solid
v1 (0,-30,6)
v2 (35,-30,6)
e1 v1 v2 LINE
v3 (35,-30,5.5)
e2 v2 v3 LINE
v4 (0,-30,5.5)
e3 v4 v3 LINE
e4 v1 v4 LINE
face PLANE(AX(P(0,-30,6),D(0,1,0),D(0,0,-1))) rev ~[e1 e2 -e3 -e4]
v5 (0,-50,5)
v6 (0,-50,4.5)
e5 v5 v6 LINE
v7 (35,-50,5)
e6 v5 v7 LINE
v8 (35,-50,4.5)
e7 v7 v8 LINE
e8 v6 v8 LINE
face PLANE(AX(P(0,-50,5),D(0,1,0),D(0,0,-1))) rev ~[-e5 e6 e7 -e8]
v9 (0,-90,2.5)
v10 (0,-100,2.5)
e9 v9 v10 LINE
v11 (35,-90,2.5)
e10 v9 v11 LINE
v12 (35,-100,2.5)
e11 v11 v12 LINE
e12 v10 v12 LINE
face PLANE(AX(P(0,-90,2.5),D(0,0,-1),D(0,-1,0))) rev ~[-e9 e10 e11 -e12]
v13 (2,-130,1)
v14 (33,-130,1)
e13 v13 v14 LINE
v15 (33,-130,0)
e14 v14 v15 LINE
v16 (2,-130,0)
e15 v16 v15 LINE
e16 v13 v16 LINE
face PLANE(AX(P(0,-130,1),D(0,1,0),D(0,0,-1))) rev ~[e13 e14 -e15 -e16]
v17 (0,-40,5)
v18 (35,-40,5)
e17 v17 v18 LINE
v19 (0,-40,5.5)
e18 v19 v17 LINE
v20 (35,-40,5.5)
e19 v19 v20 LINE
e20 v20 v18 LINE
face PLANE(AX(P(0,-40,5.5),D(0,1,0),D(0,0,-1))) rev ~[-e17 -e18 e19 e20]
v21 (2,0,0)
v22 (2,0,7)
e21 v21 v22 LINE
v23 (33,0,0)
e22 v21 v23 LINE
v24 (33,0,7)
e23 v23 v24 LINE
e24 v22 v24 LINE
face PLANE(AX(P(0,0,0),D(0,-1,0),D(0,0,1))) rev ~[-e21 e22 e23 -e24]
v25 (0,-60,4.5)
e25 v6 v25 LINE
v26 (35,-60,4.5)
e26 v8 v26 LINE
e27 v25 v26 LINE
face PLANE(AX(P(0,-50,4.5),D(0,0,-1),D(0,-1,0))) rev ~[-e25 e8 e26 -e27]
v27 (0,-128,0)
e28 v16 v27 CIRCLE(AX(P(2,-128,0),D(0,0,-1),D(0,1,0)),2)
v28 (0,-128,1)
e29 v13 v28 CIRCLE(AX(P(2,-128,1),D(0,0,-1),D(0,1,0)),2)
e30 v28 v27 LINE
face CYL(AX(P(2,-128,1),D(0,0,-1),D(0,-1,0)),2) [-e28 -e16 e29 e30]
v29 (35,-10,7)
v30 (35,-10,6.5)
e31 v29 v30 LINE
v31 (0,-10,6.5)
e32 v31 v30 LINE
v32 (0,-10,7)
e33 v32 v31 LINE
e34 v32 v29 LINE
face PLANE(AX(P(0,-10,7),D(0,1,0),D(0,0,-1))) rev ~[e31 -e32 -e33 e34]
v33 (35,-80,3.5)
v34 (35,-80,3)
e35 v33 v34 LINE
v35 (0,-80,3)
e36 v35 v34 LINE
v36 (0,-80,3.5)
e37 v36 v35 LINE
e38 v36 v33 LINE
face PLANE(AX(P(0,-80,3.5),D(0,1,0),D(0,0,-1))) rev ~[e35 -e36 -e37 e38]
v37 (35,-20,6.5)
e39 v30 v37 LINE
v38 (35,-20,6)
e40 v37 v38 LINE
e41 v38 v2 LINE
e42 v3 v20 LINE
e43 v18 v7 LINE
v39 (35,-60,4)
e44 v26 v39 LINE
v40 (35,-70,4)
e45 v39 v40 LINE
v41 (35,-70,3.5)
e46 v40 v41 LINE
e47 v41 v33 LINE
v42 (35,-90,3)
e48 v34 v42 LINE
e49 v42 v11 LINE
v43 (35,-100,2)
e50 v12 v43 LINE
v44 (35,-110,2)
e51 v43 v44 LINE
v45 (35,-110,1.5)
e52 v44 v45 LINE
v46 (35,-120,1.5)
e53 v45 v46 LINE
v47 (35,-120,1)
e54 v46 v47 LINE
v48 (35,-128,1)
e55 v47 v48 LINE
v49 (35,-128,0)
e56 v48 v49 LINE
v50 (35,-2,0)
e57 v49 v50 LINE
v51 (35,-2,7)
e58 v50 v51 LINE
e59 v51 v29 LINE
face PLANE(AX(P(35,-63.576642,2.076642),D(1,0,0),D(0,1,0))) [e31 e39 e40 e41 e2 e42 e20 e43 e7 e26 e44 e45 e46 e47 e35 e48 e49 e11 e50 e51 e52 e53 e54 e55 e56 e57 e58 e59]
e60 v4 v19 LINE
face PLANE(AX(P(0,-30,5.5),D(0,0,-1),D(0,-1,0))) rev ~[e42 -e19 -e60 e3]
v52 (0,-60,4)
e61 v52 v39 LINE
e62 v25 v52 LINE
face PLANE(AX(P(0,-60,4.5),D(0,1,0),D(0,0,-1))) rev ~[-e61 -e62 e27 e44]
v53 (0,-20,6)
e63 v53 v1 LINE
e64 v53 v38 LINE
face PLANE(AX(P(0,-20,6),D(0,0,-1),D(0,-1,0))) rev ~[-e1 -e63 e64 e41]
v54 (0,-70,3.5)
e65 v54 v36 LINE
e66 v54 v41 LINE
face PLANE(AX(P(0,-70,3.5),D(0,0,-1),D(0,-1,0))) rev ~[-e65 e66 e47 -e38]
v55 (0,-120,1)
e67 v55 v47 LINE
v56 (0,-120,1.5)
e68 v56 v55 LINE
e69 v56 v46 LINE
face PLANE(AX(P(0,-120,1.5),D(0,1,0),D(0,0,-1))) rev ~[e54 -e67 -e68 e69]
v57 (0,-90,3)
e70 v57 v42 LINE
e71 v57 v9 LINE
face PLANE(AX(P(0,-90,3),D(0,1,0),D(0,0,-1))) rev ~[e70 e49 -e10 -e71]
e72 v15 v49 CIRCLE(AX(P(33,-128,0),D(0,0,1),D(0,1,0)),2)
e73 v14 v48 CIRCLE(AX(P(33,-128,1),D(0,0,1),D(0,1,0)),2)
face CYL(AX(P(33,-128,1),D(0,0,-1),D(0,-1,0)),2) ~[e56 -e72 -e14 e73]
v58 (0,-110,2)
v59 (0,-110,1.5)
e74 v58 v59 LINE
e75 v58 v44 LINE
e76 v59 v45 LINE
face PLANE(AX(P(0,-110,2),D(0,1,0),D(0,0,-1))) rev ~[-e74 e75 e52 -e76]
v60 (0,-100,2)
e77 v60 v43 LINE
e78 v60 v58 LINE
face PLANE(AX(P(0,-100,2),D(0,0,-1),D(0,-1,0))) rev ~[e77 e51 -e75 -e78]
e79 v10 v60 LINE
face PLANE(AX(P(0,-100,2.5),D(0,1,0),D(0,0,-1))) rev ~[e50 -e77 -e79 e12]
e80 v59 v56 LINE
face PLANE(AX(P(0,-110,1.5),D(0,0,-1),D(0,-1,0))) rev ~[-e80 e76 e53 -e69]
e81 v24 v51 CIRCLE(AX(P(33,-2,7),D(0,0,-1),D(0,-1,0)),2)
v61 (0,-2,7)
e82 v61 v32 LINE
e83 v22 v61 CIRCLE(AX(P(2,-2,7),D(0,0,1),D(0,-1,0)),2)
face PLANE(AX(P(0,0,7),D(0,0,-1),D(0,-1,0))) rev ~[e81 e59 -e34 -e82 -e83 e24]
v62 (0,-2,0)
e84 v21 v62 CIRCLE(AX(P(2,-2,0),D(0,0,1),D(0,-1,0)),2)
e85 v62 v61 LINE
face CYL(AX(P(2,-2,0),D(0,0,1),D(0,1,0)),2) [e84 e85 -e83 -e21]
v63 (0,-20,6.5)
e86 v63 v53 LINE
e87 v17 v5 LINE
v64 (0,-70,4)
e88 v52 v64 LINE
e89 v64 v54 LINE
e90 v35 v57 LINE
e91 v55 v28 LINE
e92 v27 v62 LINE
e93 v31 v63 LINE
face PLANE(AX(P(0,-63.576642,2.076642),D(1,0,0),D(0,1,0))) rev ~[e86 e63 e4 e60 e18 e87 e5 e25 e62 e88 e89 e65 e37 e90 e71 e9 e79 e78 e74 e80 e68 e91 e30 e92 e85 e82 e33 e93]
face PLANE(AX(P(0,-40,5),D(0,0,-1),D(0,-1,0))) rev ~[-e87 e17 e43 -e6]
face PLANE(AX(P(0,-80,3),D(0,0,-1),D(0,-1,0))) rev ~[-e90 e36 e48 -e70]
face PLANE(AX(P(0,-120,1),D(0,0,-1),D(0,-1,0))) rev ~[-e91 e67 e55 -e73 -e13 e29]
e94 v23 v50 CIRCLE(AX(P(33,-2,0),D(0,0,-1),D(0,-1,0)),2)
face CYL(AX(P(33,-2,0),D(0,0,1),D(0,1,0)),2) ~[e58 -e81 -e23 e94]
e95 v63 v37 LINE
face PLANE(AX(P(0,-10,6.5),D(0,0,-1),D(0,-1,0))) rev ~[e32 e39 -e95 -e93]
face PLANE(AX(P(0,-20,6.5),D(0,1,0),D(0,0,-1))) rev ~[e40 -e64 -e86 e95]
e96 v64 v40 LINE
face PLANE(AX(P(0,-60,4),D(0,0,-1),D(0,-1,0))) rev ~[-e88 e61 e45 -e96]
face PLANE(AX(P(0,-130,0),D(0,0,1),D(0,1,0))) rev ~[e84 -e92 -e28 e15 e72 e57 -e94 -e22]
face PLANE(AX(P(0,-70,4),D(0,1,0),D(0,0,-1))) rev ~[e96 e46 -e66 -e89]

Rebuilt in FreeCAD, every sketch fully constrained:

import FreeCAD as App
import Part
import Sketcher
from FreeCAD import Vector
Q = App.Units.Quantity


def edges_at(feature, points):
    """Names of the edges that pass closest to the given points."""
    edges = feature.Shape.Edges
    near = lambda p: min(range(len(edges)), key=lambda i: edges[i].distToShape(Part.Vertex(*p))[0])
    return sorted({f"Edge{near(p) + 1}" for p in points})


def add_polygon(sketch, points):
    """Adds a closed chain of lines whose ends are joined by coincident constraints."""
    first, n = sketch.GeometryCount, len(points)
    for a, b in zip(points, points[1:] + points[:1]):
        sketch.addGeometry(Part.LineSegment(App.Vector(*a, 0), App.Vector(*b, 0)), False)
    for i in range(n):
        sketch.addConstraint(Sketcher.Constraint("Coincident", first + i, 2, first + (i + 1) % n, 1))

doc = App.newDocument("Part")
body = doc.addObject("PartDesign::Body", "Body")

# Sketch on YZ plane
sketch1 = body.newObject("Sketcher::SketchObject", "Sketch")
sketch1.AttachmentSupport = (doc.getObject("YZ_Plane"), [""])
sketch1.MapMode = "FlatFace"
add_polygon(sketch1, [(-60, 4.5), (-60, 4), (-70, 4), (-70, 3.5), (-80, 3.5), (-80, 3), (-90, 3), (-90, 2.5), (-100, 2.5), (-100, 2), (-110, 2), (-110, 1.5), (-120, 1.5), (-120, 1), (-130, 1), (-130, 0), (0, 0), (0, 7), (-10, 7), (-10, 6.5), (-20, 6.5), (-20, 6), (-30, 6), (-30, 5.5), (-40, 5.5), (-40, 5), (-50, 5), (-50, 4.5)])  # lines 0-27
sketch1.addConstraint([
    Sketcher.Constraint("Vertical", 0),
    Sketcher.Constraint("Horizontal", 1),
    Sketcher.Constraint("Vertical", 2),
    Sketcher.Constraint("Horizontal", 3),
    Sketcher.Constraint("Vertical", 4),
    Sketcher.Constraint("Horizontal", 5),
    Sketcher.Constraint("Vertical", 6),
    Sketcher.Constraint("Horizontal", 7),
    Sketcher.Constraint("Vertical", 8),
    Sketcher.Constraint("Horizontal", 9),
    Sketcher.Constraint("Vertical", 10),
    Sketcher.Constraint("Horizontal", 11),
    Sketcher.Constraint("Vertical", 12),
    Sketcher.Constraint("Horizontal", 13),
    Sketcher.Constraint("Vertical", 14),
    Sketcher.Constraint("Horizontal", 15),
    Sketcher.Constraint("Vertical", 16),
    Sketcher.Constraint("Horizontal", 17),
    Sketcher.Constraint("Vertical", 18),
    Sketcher.Constraint("Horizontal", 19),
    Sketcher.Constraint("Vertical", 20),
    Sketcher.Constraint("Horizontal", 21),
    Sketcher.Constraint("Vertical", 22),
    Sketcher.Constraint("Horizontal", 23),
    Sketcher.Constraint("Vertical", 24),
    Sketcher.Constraint("Horizontal", 25),
    Sketcher.Constraint("Vertical", 26),
    Sketcher.Constraint("Horizontal", 27),
    Sketcher.Constraint("Coincident", 15, 2, -1, 1),
    Sketcher.Constraint("Equal", 1, 3),
    Sketcher.Constraint("Equal", 3, 5),
    Sketcher.Constraint("Equal", 5, 7),
    Sketcher.Constraint("Equal", 7, 9),
    Sketcher.Constraint("Equal", 9, 11),
    Sketcher.Constraint("Equal", 11, 13),
    Sketcher.Constraint("Equal", 13, 17),
    Sketcher.Constraint("Equal", 17, 19),
    Sketcher.Constraint("Equal", 19, 21),
    Sketcher.Constraint("Equal", 21, 23),
    Sketcher.Constraint("Equal", 23, 25),
    Sketcher.Constraint("Equal", 25, 27),
    Sketcher.Constraint("Equal", 0, 2),
    Sketcher.Constraint("Equal", 2, 4),
    Sketcher.Constraint("Equal", 4, 6),
    Sketcher.Constraint("Equal", 6, 8),
    Sketcher.Constraint("Equal", 8, 10),
    Sketcher.Constraint("Equal", 10, 12),
    Sketcher.Constraint("Equal", 12, 18),
    Sketcher.Constraint("Equal", 18, 20),
    Sketcher.Constraint("Equal", 20, 22),
    Sketcher.Constraint("Equal", 22, 24),
    Sketcher.Constraint("Equal", 24, 26),
    Sketcher.Constraint("DistanceX", 1, 2, 1, 1, Q("10 mm")),
    Sketcher.Constraint("DistanceY", 14, 2, 14, 1, Q("1 mm")),
    Sketcher.Constraint("DistanceY", 16, 1, 16, 2, Q("7 mm")),
])
pad1 = body.newObject("PartDesign::Pad", "Pad")
pad1.Profile = sketch1
pad1.Length = 35
doc.recompute()

fillet = body.newObject("PartDesign::Fillet", "Fillet")
fillet.Base = (pad1, edges_at(pad1, [
    (35, 0, 3.5),
    (35, -130, 0.5),
    (0, -130, 0.5),
    (0, 0, 3.5),
]))
fillet.Radius = 2

doc.recompute()
